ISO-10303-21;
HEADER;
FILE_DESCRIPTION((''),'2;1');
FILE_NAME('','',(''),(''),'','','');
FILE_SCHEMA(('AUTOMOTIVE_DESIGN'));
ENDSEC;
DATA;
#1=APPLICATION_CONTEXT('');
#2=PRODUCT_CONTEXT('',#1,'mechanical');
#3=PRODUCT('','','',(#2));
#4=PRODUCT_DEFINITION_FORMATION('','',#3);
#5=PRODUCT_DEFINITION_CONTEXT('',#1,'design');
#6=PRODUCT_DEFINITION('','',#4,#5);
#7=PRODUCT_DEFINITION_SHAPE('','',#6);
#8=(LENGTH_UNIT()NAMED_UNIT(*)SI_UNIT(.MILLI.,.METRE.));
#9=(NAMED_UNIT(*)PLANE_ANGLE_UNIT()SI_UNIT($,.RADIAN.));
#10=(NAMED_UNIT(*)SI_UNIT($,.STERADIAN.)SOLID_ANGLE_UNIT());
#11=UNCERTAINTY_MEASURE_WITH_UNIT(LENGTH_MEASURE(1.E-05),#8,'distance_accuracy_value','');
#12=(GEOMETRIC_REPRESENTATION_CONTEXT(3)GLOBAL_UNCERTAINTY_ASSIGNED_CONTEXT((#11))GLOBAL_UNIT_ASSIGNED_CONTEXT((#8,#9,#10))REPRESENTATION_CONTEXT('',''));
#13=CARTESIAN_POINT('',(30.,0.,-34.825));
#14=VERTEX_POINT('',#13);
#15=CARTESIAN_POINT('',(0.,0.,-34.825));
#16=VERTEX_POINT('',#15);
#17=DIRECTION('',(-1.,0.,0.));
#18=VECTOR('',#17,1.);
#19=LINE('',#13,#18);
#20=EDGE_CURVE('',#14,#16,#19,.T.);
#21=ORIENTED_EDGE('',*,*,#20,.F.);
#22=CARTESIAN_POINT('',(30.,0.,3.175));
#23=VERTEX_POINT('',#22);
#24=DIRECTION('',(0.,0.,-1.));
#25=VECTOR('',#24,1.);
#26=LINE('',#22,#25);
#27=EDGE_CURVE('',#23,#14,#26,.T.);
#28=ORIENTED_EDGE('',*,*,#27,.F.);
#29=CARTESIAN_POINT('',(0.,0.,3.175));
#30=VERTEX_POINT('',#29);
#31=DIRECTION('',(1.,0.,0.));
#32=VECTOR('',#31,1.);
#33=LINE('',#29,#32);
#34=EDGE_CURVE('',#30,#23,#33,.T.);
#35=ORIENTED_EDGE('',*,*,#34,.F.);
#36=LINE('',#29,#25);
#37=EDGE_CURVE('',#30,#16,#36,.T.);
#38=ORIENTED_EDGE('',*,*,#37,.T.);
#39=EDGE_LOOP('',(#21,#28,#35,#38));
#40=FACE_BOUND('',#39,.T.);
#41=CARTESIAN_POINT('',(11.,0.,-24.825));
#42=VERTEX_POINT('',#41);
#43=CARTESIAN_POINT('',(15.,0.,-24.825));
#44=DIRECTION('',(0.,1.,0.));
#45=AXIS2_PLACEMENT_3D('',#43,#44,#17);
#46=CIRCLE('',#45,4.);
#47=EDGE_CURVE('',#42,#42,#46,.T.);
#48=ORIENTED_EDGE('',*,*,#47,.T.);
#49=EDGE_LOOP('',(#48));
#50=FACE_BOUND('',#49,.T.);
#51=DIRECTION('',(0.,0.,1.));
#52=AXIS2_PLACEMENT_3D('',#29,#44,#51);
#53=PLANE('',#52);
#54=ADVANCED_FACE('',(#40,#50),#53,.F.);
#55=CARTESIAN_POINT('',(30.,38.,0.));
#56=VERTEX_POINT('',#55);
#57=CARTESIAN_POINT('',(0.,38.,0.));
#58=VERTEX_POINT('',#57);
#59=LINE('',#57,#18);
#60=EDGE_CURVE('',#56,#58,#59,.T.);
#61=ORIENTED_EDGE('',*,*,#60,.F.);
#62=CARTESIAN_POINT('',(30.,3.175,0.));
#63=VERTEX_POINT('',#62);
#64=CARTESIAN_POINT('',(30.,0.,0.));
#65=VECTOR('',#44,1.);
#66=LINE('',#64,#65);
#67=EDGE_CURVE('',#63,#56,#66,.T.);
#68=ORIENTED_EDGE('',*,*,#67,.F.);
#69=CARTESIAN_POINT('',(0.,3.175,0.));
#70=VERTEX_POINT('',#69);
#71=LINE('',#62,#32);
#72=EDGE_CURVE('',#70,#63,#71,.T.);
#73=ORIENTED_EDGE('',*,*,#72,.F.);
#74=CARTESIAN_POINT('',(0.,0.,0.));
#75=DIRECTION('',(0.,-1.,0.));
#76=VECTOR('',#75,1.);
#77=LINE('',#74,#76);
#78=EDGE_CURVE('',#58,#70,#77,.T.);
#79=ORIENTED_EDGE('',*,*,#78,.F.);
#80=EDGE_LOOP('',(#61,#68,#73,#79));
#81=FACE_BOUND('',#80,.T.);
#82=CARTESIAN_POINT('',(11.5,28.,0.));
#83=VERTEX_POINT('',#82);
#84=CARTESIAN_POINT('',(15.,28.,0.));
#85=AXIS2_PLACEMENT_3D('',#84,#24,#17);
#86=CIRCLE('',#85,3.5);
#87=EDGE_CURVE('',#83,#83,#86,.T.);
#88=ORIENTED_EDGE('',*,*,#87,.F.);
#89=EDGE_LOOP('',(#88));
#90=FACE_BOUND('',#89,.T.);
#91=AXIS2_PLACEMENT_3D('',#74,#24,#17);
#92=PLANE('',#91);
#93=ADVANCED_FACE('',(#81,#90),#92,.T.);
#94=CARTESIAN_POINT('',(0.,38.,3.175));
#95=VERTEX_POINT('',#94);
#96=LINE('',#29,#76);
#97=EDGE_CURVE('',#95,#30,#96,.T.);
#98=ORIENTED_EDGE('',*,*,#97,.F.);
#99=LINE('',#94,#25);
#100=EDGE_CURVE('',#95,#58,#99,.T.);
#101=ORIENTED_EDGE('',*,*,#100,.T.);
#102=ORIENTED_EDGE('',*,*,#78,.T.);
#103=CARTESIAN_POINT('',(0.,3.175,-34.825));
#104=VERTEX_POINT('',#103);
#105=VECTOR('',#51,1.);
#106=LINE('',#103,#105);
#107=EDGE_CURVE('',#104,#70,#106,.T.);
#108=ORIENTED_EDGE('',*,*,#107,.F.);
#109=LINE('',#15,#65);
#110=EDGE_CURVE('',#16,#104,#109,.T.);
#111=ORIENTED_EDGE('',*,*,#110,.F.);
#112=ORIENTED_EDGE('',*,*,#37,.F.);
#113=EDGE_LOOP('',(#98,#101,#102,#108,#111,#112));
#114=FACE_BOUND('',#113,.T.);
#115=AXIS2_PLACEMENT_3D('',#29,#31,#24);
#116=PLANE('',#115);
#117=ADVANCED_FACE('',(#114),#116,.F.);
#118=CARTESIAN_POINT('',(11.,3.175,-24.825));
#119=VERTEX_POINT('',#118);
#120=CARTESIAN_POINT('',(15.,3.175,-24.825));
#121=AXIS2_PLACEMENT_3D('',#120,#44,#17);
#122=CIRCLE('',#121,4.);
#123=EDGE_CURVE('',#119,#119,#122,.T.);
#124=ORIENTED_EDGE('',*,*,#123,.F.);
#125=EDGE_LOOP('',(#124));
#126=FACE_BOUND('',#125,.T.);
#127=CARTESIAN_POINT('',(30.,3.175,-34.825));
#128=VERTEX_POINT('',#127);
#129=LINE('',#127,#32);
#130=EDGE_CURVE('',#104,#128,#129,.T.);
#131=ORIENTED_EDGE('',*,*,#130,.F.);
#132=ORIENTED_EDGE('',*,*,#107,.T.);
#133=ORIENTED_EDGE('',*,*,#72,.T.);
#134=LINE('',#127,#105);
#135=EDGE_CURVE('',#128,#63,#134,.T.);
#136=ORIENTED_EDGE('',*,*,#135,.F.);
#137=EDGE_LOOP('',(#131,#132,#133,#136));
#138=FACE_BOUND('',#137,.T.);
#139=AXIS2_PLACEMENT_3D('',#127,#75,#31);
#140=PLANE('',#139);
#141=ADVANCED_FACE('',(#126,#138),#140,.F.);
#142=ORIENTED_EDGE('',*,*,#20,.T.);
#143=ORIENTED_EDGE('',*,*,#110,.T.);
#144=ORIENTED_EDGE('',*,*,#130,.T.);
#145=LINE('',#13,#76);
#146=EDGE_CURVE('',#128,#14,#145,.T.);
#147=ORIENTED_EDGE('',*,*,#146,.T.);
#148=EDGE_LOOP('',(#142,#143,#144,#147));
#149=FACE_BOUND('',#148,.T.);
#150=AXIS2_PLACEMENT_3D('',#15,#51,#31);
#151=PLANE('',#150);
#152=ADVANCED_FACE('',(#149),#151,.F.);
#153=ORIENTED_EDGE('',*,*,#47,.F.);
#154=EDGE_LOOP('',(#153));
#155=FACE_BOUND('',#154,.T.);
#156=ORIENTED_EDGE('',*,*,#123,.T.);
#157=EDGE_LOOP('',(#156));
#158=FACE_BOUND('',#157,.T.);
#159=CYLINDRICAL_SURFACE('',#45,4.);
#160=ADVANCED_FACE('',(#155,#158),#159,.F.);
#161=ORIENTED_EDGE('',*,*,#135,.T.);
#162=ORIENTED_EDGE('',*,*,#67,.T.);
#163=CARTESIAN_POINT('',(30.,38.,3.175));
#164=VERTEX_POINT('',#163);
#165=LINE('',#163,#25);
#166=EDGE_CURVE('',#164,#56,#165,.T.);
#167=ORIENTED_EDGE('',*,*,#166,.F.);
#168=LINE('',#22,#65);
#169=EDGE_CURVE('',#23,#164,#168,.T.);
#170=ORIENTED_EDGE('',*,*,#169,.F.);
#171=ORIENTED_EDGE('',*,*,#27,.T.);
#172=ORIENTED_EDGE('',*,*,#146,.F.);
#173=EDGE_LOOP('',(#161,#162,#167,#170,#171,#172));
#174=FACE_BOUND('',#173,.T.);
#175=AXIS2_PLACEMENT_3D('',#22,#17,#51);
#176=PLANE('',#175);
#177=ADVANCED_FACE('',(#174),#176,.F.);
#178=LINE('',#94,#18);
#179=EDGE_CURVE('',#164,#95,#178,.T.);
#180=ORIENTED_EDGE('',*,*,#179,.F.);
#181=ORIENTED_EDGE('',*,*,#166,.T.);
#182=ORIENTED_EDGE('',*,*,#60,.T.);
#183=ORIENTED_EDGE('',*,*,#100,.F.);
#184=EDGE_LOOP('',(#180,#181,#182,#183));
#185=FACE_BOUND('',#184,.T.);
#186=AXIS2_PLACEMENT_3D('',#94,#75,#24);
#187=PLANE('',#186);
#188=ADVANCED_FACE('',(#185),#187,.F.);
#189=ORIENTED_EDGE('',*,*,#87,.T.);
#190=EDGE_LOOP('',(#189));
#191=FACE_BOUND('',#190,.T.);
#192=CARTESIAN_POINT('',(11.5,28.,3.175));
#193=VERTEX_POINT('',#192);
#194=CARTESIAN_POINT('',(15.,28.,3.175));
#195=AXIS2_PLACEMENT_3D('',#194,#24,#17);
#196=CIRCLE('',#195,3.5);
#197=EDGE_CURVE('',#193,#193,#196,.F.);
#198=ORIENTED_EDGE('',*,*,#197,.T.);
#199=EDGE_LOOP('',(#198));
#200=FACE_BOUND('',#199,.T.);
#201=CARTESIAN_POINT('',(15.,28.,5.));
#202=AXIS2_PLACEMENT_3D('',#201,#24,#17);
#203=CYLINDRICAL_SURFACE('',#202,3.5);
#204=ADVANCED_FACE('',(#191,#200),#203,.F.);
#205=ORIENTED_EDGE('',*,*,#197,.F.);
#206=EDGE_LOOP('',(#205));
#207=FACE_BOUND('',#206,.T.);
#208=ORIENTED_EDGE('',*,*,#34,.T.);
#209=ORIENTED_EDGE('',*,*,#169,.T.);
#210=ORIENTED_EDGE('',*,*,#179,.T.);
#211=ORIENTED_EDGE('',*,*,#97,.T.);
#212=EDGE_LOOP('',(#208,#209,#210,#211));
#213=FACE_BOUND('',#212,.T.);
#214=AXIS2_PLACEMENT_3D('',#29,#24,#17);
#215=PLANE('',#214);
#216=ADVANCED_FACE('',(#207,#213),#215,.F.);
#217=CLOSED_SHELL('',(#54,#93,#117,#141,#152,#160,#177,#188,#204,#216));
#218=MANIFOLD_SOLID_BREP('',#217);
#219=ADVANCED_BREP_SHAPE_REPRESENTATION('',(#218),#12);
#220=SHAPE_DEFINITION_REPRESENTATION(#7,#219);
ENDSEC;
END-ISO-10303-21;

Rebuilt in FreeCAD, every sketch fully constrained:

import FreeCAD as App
import Part
import Sketcher
from FreeCAD import Vector

doc = App.newDocument("Part")
body = doc.addObject("PartDesign::Body", "Body")

sketch1 = body.newObject("Sketcher::SketchObject", "Sketch")
sketch1.AttachmentSupport = (doc.getObject("XY_Plane"), [""])
sketch1.MapMode = "FlatFace"
sketch1.addGeometry([
    Part.LineSegment(Vector(0, 38, 0), Vector(0, 0, 0)),
    Part.LineSegment(Vector(0, 0, 0), Vector(30, 0, 0)),
    Part.LineSegment(Vector(30, 0, 0), Vector(30, 38, 0)),
    Part.LineSegment(Vector(30, 38, 0), Vector(0, 38, 0)),
], False)
sketch1.addConstraint([
    Sketcher.Constraint("Coincident", 0, 2, 1, 1),
    Sketcher.Constraint("Coincident", 1, 2, 2, 1),
    Sketcher.Constraint("Coincident", 2, 2, 3, 1),
    Sketcher.Constraint("Coincident", 3, 2, 0, 1),
    Sketcher.Constraint("Vertical", 0),
    Sketcher.Constraint("Horizontal", 1),
    Sketcher.Constraint("Vertical", 2),
    Sketcher.Constraint("Horizontal", 3),
    Sketcher.Constraint("Coincident", 0, 2, -1, 1),
    Sketcher.Constraint("DistanceX", 1, 1, 1, 2, 30.0),
    Sketcher.Constraint("DistanceY", 0, 2, 0, 1, 38.0),
])
pad1 = body.newObject("PartDesign::Pad", "Pad")
pad1.Profile = sketch1
pad1.Length = 3.175

sketch2 = body.newObject("Sketcher::SketchObject", "Sketch001")
sketch2.AttachmentSupport = (doc.getObject("XY_Plane"), [""])
sketch2.MapMode = "FlatFace"
sketch2.addGeometry([
    Part.LineSegment(Vector(30, 3.175, 0), Vector(30, 0, 0)),
    Part.LineSegment(Vector(30, 0, 0), Vector(0, 0, 0)),
    Part.LineSegment(Vector(0, 0, 0), Vector(0, 3.175, 0)),
    Part.LineSegment(Vector(0, 3.175, 0), Vector(30, 3.175, 0)),
], False)
sketch2.addConstraint([
    Sketcher.Constraint("Coincident", 0, 2, 1, 1),
    Sketcher.Constraint("Coincident", 1, 2, 2, 1),
    Sketcher.Constraint("Coincident", 2, 2, 3, 1),
    Sketcher.Constraint("Coincident", 3, 2, 0, 1),
    Sketcher.Constraint("Vertical", 0),
    Sketcher.Constraint("Horizontal", 1),
    Sketcher.Constraint("Vertical", 2),
    Sketcher.Constraint("Horizontal", 3),
    Sketcher.Constraint("Coincident", 1, 2, -1, 1),
    Sketcher.Constraint("DistanceX", 1, 2, 1, 1, 30.0),
    Sketcher.Constraint("DistanceY", 0, 2, 0, 1, 3.175),
])
pad2 = body.newObject("PartDesign::Pad", "Pad001")
pad2.Profile = sketch2
pad2.Length = 34.825
pad2.Reversed = True

sketch3 = body.newObject("Sketcher::SketchObject", "Sketch002")
sketch3.AttachmentSupport = (doc.getObject("XY_Plane"), [""])
sketch3.MapMode = "FlatFace"
sketch3.addGeometry(Part.Circle(Vector(15, 28, 0), Vector(0, 0, 1), 4), False)
sketch3.addConstraint([
    Sketcher.Constraint("Diameter", 0, 8.0),
    Sketcher.Constraint("DistanceX", -1, 1, 0, 3, 15.0),
    Sketcher.Constraint("DistanceY", -1, 1, 0, 3, 28.0),
])
pocket1 = body.newObject("PartDesign::Pocket", "Pocket")
pocket1.Profile = sketch3
pocket1.Type = "ThroughAll"
pocket1.Reversed = True

sketch4 = body.newObject("Sketcher::SketchObject", "Sketch003")
sketch4.AttachmentSupport = (doc.getObject("XZ_Plane"), [""])
sketch4.MapMode = "FlatFace"
sketch4.AttachmentOffset = App.Placement(Vector(0, 0, -3.175), App.Rotation())
sketch4.addGeometry(Part.Circle(Vector(15, -24.825, 0), Vector(0, 0, 1), 4), False)
sketch4.addConstraint([
    Sketcher.Constraint("Diameter", 0, 8.0),
    Sketcher.Constraint("DistanceX", -1, 1, 0, 3, 15.0),
    Sketcher.Constraint("DistanceY", 0, 3, -1, 1, 24.825),
])
pocket2 = body.newObject("PartDesign::Pocket", "Pocket001")
pocket2.Profile = sketch4
pocket2.Type = "ThroughAll"
pocket2.Reversed = True

sketch5 = body.newObject("Sketcher::SketchObject", "Sketch004")
sketch5.AttachmentSupport = (doc.getObject("XY_Plane"), [""])
sketch5.MapMode = "FlatFace"
sketch5.addGeometry([
    Part.Circle(Vector(15, 28, 0), Vector(0, 0, 1), 4),
    Part.Circle(Vector(15, 28, 0), Vector(0, 0, 1), 3.5),
], False)
sketch5.addConstraint([
    Sketcher.Constraint("Coincident", 1, 3, 0, 3),
    Sketcher.Constraint("Diameter", 0, 8.0),
    Sketcher.Constraint("Diameter", 1, 7.0),
    Sketcher.Constraint("DistanceX", -1, 1, 0, 3, 15.0),
    Sketcher.Constraint("DistanceY", -1, 1, 0, 3, 28.0),
])
pad3 = body.newObject("PartDesign::Pad", "Pad002")
pad3.Profile = sketch5
pad3.Length = 5

sketch6 = body.newObject("Sketcher::SketchObject", "Sketch005")
sketch6.AttachmentSupport = (doc.getObject("YZ_Plane"), [""])
sketch6.MapMode = "FlatFace"
sketch6.addGeometry([
    Part.LineSegment(Vector(32.635941, 3.175, 0), Vector(22.535614, 3.175, 0)),
    Part.LineSegment(Vector(22.535614, 3.175, 0), Vector(22.535614, 7.154033, 0)),
    Part.LineSegment(Vector(22.535614, 7.154033, 0), Vector(32.635941, 7.154033, 0)),
    Part.LineSegment(Vector(32.635941, 7.154033, 0), Vector(32.635941, 3.175, 0)),
], False)
sketch6.addConstraint([
    Sketcher.Constraint("Coincident", 0, 2, 1, 1),
    Sketcher.Constraint("Coincident", 1, 2, 2, 1),
    Sketcher.Constraint("Coincident", 2, 2, 3, 1),
    Sketcher.Constraint("Coincident", 3, 2, 0, 1),
    Sketcher.Constraint("Horizontal", 0),
    Sketcher.Constraint("Vertical", 1),
    Sketcher.Constraint("Horizontal", 2),
    Sketcher.Constraint("Vertical", 3),
    Sketcher.Constraint("DistanceY", -1, 1, 0, 2, 3.175),
    Sketcher.Constraint("DistanceX", 0, 2, 0, 1, 10.100327),
    Sketcher.Constraint("DistanceY", 1, 1, 1, 2, 3.979033),
    Sketcher.Constraint("DistanceX", -1, 1, 2, 2, 32.635941),
])
pocket3 = body.newObject("PartDesign::Pocket", "Pocket002")
pocket3.Profile = sketch6
pocket3.Length = 36
pocket3.Reversed = True

doc.recompute()
